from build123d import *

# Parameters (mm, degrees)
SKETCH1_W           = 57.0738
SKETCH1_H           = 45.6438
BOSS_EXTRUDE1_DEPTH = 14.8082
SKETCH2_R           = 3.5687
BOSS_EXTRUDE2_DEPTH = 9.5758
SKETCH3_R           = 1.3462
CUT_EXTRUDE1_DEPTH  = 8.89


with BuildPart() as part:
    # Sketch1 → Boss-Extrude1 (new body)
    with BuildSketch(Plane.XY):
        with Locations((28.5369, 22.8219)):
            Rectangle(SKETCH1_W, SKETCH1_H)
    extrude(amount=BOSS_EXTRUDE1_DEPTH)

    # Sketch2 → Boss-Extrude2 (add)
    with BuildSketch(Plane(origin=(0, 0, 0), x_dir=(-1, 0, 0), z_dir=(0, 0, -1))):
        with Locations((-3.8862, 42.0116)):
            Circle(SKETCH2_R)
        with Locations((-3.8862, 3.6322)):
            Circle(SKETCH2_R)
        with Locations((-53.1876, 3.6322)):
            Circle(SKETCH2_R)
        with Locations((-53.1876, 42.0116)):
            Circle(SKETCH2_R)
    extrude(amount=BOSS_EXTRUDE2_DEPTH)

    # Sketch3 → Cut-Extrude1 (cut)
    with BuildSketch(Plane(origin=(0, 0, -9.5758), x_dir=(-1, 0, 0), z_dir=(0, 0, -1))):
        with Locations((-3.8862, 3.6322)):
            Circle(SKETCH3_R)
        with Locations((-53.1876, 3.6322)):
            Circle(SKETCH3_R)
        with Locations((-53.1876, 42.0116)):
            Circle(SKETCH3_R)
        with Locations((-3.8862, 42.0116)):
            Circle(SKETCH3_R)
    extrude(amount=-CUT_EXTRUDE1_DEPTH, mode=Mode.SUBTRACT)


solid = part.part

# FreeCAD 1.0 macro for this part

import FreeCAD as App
import Part
import Sketcher
Q = App.Units.Quantity

doc = App.newDocument("Part")
body = doc.addObject("PartDesign::Body", "Body")

# Sketch on XY plane
sketch1 = body.newObject("Sketcher::SketchObject", "Sketch")
sketch1.AttachmentSupport = (doc.getObject("XY_Plane"), [""])
sketch1.MapMode = "FlatFace"
sketch1.addGeometry([
    Part.LineSegment(App.Vector(0, 46, 0), App.Vector(0, 0, 0)),
    Part.LineSegment(App.Vector(0, 0, 0), App.Vector(57, 0, 0)),
    Part.LineSegment(App.Vector(57, 0, 0), App.Vector(57, 46, 0)),
    Part.LineSegment(App.Vector(57, 46, 0), App.Vector(0, 46, 0)),
], False)
sketch1.addConstraint([
    Sketcher.Constraint("Coincident", 0, 2, 1, 1),
    Sketcher.Constraint("Coincident", 1, 2, 2, 1),
    Sketcher.Constraint("Coincident", 2, 2, 3, 1),
    Sketcher.Constraint("Coincident", 3, 2, 0, 1),
    Sketcher.Constraint("Vertical", 0),
    Sketcher.Constraint("Horizontal", 1),
    Sketcher.Constraint("Vertical", 2),
    Sketcher.Constraint("Horizontal", 3),
    Sketcher.Constraint("Coincident", 0, 2, -1, 1),
    Sketcher.Constraint("DistanceX", 1, 1, 1, 2, Q("2.247 in")),
    Sketcher.Constraint("DistanceY", 0, 2, 0, 1, Q("1.797 in")),
])
pad1 = body.newObject("PartDesign::Pad", "Pad")
pad1.Profile = sketch1
pad1.Length = Q("0.583 in")

# Sketch on XY plane
sketch2 = body.newObject("Sketcher::SketchObject", "Sketch001")
sketch2.AttachmentSupport = (doc.getObject("XY_Plane"), [""])
sketch2.MapMode = "FlatFace"
sketch2.addGeometry([
    Part.Circle(App.Vector(3.9, 42, 0), App.Vector(0, 0, 1), 3.6),
    Part.Circle(App.Vector(3.9, 3.6, 0), App.Vector(0, 0, 1), 3.6),
    Part.Circle(App.Vector(53.2, 3.6, 0), App.Vector(0, 0, 1), 3.6),
    Part.Circle(App.Vector(53.2, 42, 0), App.Vector(0, 0, 1), 3.6),
], False)
sketch2.addConstraint([
    Sketcher.Constraint("Equal", 0, 1),
    Sketcher.Constraint("Equal", 1, 2),
    Sketcher.Constraint("Equal", 2, 3),
    Sketcher.Constraint("Horizontal", 1, 3, 2, 3),
    Sketcher.Constraint("Horizontal", 0, 3, 3, 3),
    Sketcher.Constraint("Vertical", 0, 3, 1, 3),
    Sketcher.Constraint("Vertical", 2, 3, 3, 3),
    Sketcher.Constraint("Diameter", 0, Q("0.281 in")),
    Sketcher.Constraint("DistanceX", -1, 1, 0, 3, Q("0.153 in")),
    Sketcher.Constraint("DistanceY", -1, 1, 0, 3, Q("1.654 in")),
    Sketcher.Constraint("DistanceY", -1, 1, 1, 3, Q("0.143 in")),
    Sketcher.Constraint("DistanceX", -1, 1, 2, 3, Q("2.094 in")),
])
pad2 = body.newObject("PartDesign::Pad", "Pad001")
pad2.Profile = sketch2
pad2.Length = Q("0.377 in")
pad2.Reversed = True

# Sketch on XY plane
sketch3 = body.newObject("Sketcher::SketchObject", "Sketch002")
sketch3.AttachmentSupport = (doc.getObject("XY_Plane"), [""])
sketch3.MapMode = "FlatFace"
sketch3.AttachmentOffset = App.Placement(App.Vector(0, 0, -0.377 * 25.4), App.Rotation())
sketch3.addGeometry([
    Part.Circle(App.Vector(3.9, 3.6, 0), App.Vector(0, 0, 1), 1.3),
    Part.Circle(App.Vector(53.2, 3.6, 0), App.Vector(0, 0, 1), 1.3),
    Part.Circle(App.Vector(53.2, 42, 0), App.Vector(0, 0, 1), 1.3),
    Part.Circle(App.Vector(3.9, 42, 0), App.Vector(0, 0, 1), 1.3),
], False)
sketch3.addConstraint([
    Sketcher.Constraint("Equal", 0, 1),
    Sketcher.Constraint("Equal", 1, 2),
    Sketcher.Constraint("Equal", 2, 3),
    Sketcher.Constraint("Horizontal", 0, 3, 1, 3),
    Sketcher.Constraint("Horizontal", 2, 3, 3, 3),
    Sketcher.Constraint("Vertical", 1, 3, 2, 3),
    Sketcher.Constraint("Vertical", 0, 3, 3, 3),
    Sketcher.Constraint("Diameter", 0, Q("0.106 in")),
    Sketcher.Constraint("DistanceX", -1, 1, 0, 3, Q("0.153 in")),
    Sketcher.Constraint("DistanceY", -1, 1, 0, 3, Q("0.143 in")),
    Sketcher.Constraint("DistanceX", -1, 1, 1, 3, Q("2.094 in")),
    Sketcher.Constraint("DistanceY", -1, 1, 2, 3, Q("1.654 in")),
])
pocket1 = body.newObject("PartDesign::Pocket", "Pocket")
pocket1.Profile = sketch3
pocket1.Length = Q("0.35 in")
pocket1.Reversed = True

doc.recompute()
